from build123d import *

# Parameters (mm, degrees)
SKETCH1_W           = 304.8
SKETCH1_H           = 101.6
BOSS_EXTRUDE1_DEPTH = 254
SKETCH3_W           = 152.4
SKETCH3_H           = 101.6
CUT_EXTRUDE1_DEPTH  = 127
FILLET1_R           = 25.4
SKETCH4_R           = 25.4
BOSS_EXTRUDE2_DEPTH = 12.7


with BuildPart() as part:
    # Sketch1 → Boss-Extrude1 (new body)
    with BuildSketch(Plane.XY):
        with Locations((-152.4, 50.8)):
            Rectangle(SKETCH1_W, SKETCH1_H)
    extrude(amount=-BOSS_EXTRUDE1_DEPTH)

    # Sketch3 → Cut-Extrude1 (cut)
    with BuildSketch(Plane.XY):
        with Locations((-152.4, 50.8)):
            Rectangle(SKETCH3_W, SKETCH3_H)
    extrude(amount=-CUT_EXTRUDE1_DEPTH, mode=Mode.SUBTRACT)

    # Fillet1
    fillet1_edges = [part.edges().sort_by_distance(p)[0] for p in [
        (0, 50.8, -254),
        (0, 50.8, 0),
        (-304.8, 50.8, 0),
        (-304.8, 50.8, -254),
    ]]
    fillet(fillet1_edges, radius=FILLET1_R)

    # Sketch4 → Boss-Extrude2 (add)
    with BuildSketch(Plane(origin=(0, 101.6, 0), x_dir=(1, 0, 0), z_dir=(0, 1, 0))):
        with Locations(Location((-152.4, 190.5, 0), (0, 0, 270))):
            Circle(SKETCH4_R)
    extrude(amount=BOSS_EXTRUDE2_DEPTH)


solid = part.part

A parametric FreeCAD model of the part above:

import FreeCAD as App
import Part
import Sketcher

V = App.Vector
Q = App.Units.Quantity


def edges_at(feature, points):
    """Names of the edges that pass closest to the given points."""
    edges = feature.Shape.Edges
    near = lambda p: min(range(len(edges)), key=lambda i: edges[i].distToShape(Part.Vertex(*p))[0])
    return sorted({f"Edge{near(p) + 1}" for p in points})


def add_polygon(sketch, points):
    """Adds a closed chain of lines whose ends are joined by coincident constraints."""
    first, n = sketch.GeometryCount, len(points)
    for a, b in zip(points, points[1:] + points[:1]):
        sketch.addGeometry(Part.LineSegment(App.Vector(*a, 0), App.Vector(*b, 0)), False)
    for i in range(n):
        sketch.addConstraint(Sketcher.Constraint("Coincident", first + i, 2, first + (i + 1) % n, 1))

doc = App.newDocument("Part")
body = doc.addObject("PartDesign::Body", "Body")

sketch1 = body.newObject("Sketcher::SketchObject", "Sketch")
sketch1.AttachmentSupport = (doc.getObject("XY_Plane"), [""])
sketch1.MapMode = "FlatFace"
add_polygon(sketch1, [(-304.8, 101.6), (-304.8, 0), (0, 0), (0, 101.6)])
sketch1.addConstraint(Sketcher.Constraint("Vertical", 0))
sketch1.addConstraint(Sketcher.Constraint("Horizontal", 1))
sketch1.addConstraint(Sketcher.Constraint("Vertical", 2))
sketch1.addConstraint(Sketcher.Constraint("Horizontal", 3))
sketch1.addConstraint(Sketcher.Constraint("Coincident", 1, 2, -1, 1))
sketch1.addConstraint(Sketcher.Constraint("DistanceX", 1, 1, 1, 2, Q("12 in")))
sketch1.addConstraint(Sketcher.Constraint("DistanceY", 0, 2, 0, 1, Q("4 in")))
pad1 = body.newObject("PartDesign::Pad", "Pad")
pad1.Profile = sketch1
pad1.Length = Q("10 in")
pad1.Reversed = True

sketch2 = body.newObject("Sketcher::SketchObject", "Sketch001")
sketch2.AttachmentSupport = (doc.getObject("XY_Plane"), [""])
sketch2.MapMode = "FlatFace"
add_polygon(sketch2, [(-228.6, 101.6), (-228.6, 0), (-76.2, 0), (-76.2, 101.6)])
sketch2.addConstraint(Sketcher.Constraint("Vertical", 0))
sketch2.addConstraint(Sketcher.Constraint("Horizontal", 1))
sketch2.addConstraint(Sketcher.Constraint("Vertical", 2))
sketch2.addConstraint(Sketcher.Constraint("Horizontal", 3))
sketch2.addConstraint(Sketcher.Constraint("PointOnObject", 0, 2, -1))
sketch2.addConstraint(Sketcher.Constraint("DistanceX", 1, 1, 1, 2, Q("6 in")))
sketch2.addConstraint(Sketcher.Constraint("DistanceY", 0, 2, 0, 1, Q("4 in")))
sketch2.addConstraint(Sketcher.Constraint("DistanceX", 0, 2, -1, 1, Q("9 in")))
pocket1 = body.newObject("PartDesign::Pocket", "Pocket")
pocket1.Profile = sketch2
pocket1.Length = Q("5 in")
doc.recompute()

fillet = body.newObject("PartDesign::Fillet", "Fillet")
fillet.Base = (pocket1, edges_at(pocket1, [
    (0, 50.8, -254),
    (0, 50.8, 0),
    (-304.8, 50.8, 0),
    (-304.8, 50.8, -254),
]))
fillet.Radius = Q("1 in")

sketch3 = body.newObject("Sketcher::SketchObject", "Sketch002")
sketch3.AttachmentSupport = (doc.getObject("XZ_Plane"), [""])
sketch3.MapMode = "FlatFace"
sketch3.AttachmentOffset = App.Placement(V(0, 0, -4 * 25.4), App.Rotation())
sketch3.addGeometry(Part.Circle(V(-152.4, -190.5, 0), V(0, 0, 1), 25.4), False)
sketch3.addConstraint(Sketcher.Constraint("Diameter", 0, Q("2 in")))
sketch3.addConstraint(Sketcher.Constraint("DistanceX", 0, 3, -1, 1, Q("6 in")))
sketch3.addConstraint(Sketcher.Constraint("DistanceY", 0, 3, -1, 1, Q("7.5 in")))
pad2 = body.newObject("PartDesign::Pad", "Pad001")
pad2.Profile = sketch3
pad2.Length = Q("0.5 in")
pad2.Reversed = True

doc.recompute()
